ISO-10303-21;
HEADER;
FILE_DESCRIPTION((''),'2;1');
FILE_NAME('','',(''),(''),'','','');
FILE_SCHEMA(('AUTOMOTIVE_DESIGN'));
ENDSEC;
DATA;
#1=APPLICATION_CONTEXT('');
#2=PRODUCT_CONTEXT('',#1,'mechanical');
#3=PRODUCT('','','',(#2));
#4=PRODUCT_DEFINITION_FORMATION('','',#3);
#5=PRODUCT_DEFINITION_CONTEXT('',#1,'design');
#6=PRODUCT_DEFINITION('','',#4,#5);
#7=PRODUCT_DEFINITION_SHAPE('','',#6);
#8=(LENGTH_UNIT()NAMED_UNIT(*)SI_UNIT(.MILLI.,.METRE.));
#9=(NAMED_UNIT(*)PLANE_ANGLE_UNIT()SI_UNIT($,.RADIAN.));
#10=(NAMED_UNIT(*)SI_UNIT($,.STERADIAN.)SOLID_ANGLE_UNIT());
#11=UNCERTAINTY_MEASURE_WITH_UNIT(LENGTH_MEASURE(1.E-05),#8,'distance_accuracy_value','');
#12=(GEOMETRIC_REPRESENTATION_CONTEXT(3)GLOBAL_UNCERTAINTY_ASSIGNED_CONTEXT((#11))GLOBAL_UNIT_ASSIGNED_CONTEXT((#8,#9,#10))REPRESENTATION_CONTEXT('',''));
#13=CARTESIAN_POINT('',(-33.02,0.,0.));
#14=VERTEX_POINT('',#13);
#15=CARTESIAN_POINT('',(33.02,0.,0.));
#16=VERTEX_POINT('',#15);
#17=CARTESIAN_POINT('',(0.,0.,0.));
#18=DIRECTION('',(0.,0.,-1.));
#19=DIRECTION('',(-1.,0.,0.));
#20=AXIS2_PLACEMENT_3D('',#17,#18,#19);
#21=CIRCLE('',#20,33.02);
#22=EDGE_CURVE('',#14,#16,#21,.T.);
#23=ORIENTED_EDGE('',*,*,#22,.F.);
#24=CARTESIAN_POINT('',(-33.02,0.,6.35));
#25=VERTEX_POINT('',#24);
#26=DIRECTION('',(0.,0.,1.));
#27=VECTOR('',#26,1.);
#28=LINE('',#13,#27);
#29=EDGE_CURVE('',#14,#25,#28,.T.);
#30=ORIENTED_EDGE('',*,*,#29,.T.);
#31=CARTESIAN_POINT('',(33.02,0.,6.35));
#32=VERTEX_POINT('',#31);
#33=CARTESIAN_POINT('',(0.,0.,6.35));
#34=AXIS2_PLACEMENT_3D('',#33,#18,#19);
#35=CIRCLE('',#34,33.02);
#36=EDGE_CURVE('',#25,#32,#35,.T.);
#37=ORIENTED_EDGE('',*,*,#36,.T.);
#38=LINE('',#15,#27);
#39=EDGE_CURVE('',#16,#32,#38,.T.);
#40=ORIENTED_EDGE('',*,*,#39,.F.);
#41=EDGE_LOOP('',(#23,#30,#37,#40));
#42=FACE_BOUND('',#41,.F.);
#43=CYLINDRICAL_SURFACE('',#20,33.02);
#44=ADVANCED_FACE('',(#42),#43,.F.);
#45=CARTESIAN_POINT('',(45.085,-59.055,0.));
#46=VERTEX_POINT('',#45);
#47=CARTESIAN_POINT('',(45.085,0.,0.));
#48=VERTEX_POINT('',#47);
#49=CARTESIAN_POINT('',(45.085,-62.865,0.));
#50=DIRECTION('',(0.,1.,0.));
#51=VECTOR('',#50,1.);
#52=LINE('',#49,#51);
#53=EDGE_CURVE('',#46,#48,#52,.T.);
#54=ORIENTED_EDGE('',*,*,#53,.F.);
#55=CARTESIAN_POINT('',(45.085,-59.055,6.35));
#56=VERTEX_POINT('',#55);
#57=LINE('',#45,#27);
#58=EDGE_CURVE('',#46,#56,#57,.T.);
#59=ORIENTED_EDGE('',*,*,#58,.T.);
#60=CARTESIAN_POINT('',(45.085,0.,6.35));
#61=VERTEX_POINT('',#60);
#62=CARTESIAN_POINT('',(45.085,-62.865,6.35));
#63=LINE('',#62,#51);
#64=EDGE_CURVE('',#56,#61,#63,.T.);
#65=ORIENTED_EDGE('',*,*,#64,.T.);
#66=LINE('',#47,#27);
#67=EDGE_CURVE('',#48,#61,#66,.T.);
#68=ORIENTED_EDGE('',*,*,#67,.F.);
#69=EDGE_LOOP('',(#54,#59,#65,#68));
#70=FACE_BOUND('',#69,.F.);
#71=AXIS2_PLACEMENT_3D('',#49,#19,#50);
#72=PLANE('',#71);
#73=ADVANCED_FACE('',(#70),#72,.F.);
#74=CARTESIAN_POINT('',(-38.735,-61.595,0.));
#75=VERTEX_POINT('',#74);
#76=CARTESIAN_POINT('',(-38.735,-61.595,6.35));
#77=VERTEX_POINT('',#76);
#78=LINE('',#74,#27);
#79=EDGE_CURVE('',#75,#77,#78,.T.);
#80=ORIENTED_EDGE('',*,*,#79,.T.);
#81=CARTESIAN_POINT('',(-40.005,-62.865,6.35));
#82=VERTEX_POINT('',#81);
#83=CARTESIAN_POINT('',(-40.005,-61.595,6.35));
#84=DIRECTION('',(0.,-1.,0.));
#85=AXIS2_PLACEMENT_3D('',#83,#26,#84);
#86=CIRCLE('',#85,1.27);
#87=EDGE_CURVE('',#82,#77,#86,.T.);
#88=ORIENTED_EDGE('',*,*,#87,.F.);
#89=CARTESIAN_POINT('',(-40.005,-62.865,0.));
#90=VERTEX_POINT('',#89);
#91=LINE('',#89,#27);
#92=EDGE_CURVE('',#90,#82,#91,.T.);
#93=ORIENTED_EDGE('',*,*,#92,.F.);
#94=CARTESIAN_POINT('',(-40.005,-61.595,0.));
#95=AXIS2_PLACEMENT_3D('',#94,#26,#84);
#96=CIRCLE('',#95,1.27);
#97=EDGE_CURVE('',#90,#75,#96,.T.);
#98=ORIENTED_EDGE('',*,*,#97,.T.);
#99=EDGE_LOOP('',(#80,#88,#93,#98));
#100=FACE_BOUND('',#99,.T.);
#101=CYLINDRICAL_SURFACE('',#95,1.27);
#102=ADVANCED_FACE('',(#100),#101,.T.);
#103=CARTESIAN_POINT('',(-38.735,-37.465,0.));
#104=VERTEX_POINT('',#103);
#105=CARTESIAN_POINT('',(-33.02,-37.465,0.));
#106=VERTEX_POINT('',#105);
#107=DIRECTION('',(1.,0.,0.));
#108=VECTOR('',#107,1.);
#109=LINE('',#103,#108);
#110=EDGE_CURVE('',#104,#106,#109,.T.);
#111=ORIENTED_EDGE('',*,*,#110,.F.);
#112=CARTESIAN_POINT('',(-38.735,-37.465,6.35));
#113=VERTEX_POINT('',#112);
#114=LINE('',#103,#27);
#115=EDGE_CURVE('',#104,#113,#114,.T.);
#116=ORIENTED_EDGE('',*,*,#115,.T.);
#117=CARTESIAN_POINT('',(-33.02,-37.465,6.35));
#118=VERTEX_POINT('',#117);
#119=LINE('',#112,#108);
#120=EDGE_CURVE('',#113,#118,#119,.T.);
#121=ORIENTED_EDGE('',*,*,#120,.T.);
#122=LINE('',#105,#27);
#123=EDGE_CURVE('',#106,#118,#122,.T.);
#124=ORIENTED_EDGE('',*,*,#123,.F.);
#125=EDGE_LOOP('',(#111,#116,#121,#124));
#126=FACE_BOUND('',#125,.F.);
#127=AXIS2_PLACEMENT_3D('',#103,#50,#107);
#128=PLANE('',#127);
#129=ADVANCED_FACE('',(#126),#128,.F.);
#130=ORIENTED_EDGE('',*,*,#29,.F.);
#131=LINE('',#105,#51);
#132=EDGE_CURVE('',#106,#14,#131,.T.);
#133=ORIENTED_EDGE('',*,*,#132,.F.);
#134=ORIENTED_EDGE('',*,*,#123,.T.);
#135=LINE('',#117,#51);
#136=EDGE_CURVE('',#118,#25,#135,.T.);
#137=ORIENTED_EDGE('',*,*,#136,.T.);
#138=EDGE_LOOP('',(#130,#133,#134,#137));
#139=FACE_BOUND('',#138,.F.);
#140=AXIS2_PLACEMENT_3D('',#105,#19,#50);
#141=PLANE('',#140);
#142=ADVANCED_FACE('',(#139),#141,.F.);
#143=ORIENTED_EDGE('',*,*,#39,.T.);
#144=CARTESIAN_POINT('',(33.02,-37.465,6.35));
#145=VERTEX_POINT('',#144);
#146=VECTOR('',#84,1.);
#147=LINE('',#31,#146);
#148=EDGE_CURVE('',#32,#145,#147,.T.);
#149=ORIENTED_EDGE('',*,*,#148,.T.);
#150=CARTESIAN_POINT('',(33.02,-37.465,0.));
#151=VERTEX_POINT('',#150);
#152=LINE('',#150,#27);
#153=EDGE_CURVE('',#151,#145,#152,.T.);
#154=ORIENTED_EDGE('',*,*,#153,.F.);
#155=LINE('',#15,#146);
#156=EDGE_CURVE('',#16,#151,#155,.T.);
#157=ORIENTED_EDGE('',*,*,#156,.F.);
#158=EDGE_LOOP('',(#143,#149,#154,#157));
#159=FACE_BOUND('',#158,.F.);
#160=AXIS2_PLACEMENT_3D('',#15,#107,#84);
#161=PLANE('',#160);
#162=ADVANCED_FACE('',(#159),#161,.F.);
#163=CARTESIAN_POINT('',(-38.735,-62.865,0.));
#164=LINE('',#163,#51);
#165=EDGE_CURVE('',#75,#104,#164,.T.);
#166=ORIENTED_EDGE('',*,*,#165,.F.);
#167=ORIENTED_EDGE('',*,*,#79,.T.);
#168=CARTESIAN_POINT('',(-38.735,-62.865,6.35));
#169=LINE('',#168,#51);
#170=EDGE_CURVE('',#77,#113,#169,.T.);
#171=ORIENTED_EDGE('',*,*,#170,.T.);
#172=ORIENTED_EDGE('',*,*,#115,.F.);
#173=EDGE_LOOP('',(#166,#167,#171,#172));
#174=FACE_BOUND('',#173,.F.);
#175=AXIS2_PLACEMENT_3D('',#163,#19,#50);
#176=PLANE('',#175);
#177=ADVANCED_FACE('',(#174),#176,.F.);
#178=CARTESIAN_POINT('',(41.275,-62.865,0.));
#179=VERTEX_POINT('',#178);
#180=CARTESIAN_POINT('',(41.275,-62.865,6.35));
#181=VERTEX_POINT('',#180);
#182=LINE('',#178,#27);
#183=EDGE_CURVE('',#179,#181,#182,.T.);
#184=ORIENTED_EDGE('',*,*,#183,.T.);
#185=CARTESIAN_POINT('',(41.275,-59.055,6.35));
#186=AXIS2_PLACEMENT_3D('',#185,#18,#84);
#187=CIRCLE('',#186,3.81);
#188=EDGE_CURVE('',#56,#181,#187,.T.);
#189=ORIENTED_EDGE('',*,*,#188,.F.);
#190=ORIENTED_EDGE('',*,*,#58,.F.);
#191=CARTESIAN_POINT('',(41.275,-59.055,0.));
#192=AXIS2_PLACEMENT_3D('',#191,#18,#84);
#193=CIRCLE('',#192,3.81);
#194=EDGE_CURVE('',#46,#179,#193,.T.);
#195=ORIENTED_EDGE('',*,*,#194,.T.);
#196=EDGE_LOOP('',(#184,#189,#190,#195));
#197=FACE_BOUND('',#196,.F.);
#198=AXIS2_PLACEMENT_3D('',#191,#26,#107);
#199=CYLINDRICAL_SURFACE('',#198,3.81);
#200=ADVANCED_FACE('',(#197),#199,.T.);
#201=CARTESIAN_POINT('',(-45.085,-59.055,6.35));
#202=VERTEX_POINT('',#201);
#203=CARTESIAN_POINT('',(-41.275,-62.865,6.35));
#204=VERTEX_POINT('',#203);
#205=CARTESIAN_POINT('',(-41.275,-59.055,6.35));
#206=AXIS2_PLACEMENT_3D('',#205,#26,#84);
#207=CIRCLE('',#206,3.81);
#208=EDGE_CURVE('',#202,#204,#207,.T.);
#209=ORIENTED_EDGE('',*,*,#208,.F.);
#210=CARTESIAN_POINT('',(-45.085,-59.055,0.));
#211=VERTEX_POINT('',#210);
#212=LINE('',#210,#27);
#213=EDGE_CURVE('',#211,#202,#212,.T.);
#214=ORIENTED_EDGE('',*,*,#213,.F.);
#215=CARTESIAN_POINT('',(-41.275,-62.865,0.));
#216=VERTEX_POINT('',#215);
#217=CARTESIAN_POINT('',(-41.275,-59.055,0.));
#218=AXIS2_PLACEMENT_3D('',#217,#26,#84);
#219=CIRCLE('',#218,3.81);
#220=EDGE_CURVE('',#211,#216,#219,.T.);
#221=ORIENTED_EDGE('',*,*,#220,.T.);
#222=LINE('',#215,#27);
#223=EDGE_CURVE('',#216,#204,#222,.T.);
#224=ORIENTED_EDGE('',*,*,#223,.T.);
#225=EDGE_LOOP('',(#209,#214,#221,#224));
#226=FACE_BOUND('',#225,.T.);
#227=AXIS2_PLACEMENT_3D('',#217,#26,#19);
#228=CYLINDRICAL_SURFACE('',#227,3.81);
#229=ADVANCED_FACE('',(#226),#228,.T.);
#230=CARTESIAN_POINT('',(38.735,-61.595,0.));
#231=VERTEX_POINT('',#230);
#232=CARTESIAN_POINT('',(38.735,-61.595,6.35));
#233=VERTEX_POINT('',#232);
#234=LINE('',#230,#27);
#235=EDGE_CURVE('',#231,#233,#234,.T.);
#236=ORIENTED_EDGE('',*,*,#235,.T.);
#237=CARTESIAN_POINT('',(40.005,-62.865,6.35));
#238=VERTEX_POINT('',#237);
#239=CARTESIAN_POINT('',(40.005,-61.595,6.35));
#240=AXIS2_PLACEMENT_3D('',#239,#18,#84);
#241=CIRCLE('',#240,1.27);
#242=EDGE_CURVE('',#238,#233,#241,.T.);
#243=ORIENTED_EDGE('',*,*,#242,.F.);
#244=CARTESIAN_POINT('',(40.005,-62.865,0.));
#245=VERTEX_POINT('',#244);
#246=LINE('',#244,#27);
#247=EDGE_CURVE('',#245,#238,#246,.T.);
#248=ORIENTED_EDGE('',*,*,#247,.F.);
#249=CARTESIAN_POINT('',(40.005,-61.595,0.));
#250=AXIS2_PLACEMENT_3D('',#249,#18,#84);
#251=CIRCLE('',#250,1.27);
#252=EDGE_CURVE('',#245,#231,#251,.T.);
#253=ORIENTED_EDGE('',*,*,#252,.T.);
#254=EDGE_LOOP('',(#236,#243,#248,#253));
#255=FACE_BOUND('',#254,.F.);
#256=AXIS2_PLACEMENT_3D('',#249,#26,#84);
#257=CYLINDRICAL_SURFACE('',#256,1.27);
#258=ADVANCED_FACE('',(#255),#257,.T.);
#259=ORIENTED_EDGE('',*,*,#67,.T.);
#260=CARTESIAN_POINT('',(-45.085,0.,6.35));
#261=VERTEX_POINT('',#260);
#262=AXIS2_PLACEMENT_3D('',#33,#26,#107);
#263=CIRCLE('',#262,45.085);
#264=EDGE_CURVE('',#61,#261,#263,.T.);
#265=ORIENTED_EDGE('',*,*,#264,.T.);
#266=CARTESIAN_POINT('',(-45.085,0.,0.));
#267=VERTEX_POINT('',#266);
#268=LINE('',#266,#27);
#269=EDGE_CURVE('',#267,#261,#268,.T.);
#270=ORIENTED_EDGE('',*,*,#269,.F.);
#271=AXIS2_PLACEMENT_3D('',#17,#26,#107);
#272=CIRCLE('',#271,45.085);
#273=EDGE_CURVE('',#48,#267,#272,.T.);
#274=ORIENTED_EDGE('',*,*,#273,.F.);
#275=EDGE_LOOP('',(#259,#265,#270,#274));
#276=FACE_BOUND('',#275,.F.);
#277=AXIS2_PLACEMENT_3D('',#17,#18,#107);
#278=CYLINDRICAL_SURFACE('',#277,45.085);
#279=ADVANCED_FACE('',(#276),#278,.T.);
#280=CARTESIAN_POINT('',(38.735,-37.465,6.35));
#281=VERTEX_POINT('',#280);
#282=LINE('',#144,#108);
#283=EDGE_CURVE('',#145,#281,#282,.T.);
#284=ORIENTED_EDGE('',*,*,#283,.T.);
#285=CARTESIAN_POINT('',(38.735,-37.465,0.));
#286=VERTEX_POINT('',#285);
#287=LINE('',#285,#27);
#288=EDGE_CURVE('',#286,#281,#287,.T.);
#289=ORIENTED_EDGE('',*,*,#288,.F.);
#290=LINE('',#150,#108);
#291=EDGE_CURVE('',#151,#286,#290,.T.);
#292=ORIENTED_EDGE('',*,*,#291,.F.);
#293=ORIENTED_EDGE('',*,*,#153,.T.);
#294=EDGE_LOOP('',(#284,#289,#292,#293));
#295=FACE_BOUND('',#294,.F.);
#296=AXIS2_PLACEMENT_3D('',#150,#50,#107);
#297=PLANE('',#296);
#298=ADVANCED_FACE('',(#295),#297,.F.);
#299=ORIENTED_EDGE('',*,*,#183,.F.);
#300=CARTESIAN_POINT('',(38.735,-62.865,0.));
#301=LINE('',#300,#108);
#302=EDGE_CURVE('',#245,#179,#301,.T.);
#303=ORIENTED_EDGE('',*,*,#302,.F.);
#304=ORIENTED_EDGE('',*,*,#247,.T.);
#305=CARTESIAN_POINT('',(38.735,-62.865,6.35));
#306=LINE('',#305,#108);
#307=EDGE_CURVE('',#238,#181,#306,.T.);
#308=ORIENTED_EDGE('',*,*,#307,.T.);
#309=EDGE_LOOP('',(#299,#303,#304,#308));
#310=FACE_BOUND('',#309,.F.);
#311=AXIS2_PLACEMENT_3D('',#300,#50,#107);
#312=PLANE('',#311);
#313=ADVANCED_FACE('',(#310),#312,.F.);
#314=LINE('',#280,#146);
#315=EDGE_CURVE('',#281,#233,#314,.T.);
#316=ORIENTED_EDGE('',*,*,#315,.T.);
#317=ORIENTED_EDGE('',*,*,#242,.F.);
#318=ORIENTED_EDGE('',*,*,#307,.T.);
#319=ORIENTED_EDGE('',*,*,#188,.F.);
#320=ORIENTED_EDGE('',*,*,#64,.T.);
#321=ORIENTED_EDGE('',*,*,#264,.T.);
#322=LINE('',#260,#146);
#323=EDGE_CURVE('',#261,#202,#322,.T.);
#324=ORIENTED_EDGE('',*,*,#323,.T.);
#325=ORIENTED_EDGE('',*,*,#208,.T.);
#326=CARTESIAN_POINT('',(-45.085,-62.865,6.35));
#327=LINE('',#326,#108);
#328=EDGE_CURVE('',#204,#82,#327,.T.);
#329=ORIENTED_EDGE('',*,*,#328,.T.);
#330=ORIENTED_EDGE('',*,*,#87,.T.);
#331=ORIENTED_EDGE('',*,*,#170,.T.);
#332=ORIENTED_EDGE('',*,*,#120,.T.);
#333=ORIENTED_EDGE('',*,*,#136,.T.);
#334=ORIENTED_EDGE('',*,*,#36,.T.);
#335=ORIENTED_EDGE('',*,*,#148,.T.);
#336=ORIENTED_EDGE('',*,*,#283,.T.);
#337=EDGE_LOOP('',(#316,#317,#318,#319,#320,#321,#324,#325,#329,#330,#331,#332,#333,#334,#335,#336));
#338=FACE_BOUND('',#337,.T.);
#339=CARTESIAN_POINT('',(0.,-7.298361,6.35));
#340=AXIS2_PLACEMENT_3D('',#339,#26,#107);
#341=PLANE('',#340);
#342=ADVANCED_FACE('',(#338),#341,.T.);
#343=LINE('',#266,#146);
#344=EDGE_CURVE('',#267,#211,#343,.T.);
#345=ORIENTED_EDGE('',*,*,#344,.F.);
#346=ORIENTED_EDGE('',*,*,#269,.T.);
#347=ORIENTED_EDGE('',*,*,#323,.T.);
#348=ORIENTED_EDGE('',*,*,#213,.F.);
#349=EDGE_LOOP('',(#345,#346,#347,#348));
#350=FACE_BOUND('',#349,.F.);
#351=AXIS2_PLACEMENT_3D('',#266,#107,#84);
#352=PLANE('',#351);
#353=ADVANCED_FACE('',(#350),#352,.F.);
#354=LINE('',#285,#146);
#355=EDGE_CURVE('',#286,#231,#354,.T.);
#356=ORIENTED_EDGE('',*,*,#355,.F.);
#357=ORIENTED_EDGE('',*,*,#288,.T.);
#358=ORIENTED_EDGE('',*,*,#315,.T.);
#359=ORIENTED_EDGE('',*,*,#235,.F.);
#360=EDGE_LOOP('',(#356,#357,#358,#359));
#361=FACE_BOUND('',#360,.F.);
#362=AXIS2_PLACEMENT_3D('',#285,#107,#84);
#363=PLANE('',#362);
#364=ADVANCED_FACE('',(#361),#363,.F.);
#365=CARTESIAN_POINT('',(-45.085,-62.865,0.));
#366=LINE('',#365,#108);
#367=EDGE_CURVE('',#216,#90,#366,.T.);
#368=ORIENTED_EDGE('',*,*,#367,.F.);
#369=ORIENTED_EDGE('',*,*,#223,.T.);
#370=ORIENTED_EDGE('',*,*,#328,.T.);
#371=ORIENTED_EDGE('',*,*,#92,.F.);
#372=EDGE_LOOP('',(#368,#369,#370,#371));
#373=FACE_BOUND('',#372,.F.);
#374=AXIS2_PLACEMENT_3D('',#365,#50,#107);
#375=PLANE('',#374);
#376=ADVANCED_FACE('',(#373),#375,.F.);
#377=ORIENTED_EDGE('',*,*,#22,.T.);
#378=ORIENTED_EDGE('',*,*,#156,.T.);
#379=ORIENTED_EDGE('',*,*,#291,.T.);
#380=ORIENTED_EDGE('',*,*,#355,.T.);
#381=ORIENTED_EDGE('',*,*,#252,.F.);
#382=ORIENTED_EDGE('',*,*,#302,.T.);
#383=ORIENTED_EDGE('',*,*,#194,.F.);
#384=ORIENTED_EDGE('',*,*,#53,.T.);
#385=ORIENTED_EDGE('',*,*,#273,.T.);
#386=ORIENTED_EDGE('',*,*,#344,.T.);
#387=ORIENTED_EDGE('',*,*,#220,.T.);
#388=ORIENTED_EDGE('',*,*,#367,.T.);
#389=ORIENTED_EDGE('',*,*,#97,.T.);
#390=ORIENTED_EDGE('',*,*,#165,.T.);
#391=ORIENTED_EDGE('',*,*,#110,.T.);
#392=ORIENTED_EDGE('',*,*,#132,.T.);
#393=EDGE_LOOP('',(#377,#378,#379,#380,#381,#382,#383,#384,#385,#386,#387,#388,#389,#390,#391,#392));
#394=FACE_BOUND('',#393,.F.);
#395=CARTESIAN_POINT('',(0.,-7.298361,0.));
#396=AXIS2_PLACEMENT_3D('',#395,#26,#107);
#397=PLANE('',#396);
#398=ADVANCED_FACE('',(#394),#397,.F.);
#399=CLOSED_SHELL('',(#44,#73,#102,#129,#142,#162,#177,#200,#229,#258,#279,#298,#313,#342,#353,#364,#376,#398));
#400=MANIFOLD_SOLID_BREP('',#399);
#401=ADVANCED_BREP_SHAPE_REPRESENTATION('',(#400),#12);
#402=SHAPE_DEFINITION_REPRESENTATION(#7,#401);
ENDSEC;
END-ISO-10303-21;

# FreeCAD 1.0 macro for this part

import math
import FreeCAD as App
import Part
import Sketcher
Q = App.Units.Quantity


def edges_at(feature, points):
    """Names of the edges that pass closest to the given points."""
    edges = feature.Shape.Edges
    near = lambda p: min(range(len(edges)), key=lambda i: edges[i].distToShape(Part.Vertex(*p))[0])
    return sorted({f"Edge{near(p) + 1}" for p in points})

doc = App.newDocument("Part")
body = doc.addObject("PartDesign::Body", "Body")

sketch1 = doc.addObject("Sketcher::SketchObject", "Sketch")
body.addObject(sketch1)
sketch1.AttachmentSupport = (doc.XY_Plane, [""])
sketch1.MapMode = "FlatFace"
sketch1.addGeometry([
    Part.LineSegment(App.Vector(45, -63, 0), App.Vector(45, 0, 0)),
    Part.ArcOfCircle(Part.Circle(App.Vector(0, 0, 0), App.Vector(0, 0, 1), 45), math.radians(0), math.radians(180)),
    Part.LineSegment(App.Vector(-45, 0, 0), App.Vector(-45, -63, 0)),
    Part.LineSegment(App.Vector(-45, -63, 0), App.Vector(-39, -63, 0)),
    Part.LineSegment(App.Vector(-39, -63, 0), App.Vector(-39, -37, 0)),
    Part.LineSegment(App.Vector(-39, -37, 0), App.Vector(-33, -37, 0)),
    Part.LineSegment(App.Vector(-33, -37, 0), App.Vector(-33, 0, 0)),
    Part.ArcOfCircle(Part.Circle(App.Vector(0, 0, 0), App.Vector(0, 0, 1), 33), math.radians(0), math.radians(180)),
    Part.LineSegment(App.Vector(33, 0, 0), App.Vector(33, -37, 0)),
    Part.LineSegment(App.Vector(33, -37, 0), App.Vector(39, -37, 0)),
    Part.LineSegment(App.Vector(39, -37, 0), App.Vector(39, -63, 0)),
    Part.LineSegment(App.Vector(39, -63, 0), App.Vector(45, -63, 0)),
], False)
sketch1.addConstraint([
    Sketcher.Constraint("Tangent", 0, 2, 1, 1),
    Sketcher.Constraint("Tangent", 1, 2, 2, 1),
    Sketcher.Constraint("Coincident", 2, 2, 3, 1),
    Sketcher.Constraint("Coincident", 3, 2, 4, 1),
    Sketcher.Constraint("Coincident", 4, 2, 5, 1),
    Sketcher.Constraint("Coincident", 5, 2, 6, 1),
    Sketcher.Constraint("Tangent", 6, 2, 7, 2),
    Sketcher.Constraint("Tangent", 7, 1, 8, 1),
    Sketcher.Constraint("Coincident", 8, 2, 9, 1),
    Sketcher.Constraint("Coincident", 9, 2, 10, 1),
    Sketcher.Constraint("Coincident", 10, 2, 11, 1),
    Sketcher.Constraint("Coincident", 11, 2, 0, 1),
    Sketcher.Constraint("Vertical", 0),
    Sketcher.Constraint("Vertical", 2),
    Sketcher.Constraint("Horizontal", 3),
    Sketcher.Constraint("Vertical", 4),
    Sketcher.Constraint("Horizontal", 5),
    Sketcher.Constraint("Vertical", 6),
    Sketcher.Constraint("Vertical", 8),
    Sketcher.Constraint("Horizontal", 9),
    Sketcher.Constraint("Vertical", 10),
    Sketcher.Constraint("Horizontal", 11),
    Sketcher.Constraint("Coincident", 1, 3, -1, 1),
    Sketcher.Constraint("Coincident", 7, 3, -1, 1),
    Sketcher.Constraint("Symmetric", 4, 2, 9, 2, -2),
    Sketcher.Constraint("Horizontal", 3, 2, 10, 2),
    Sketcher.Constraint("Radius", 7, Q("1.3 in")),
    Sketcher.Constraint("DistanceY", 4, 1, 4, 2, Q("1 in")),
    Sketcher.Constraint("Radius", 1, Q("1.775 in")),
    Sketcher.Constraint("DistanceX", 3, 1, 3, 2, Q("0.25 in")),
    Sketcher.Constraint("DistanceY", 0, 1, 0, 2, Q("2.475 in")),
])
pad1 = doc.addObject("PartDesign::Pad", "Pad")
body.addObject(pad1)
pad1.Profile = sketch1
pad1.Length = Q("0.25 in")
doc.recompute()

fillet = doc.addObject("PartDesign::Fillet", "Fillet")
body.addObject(fillet)
fillet.Base = (pad1, edges_at(pad1, [(-45.085, -62.865, 3.175), (45.085, -62.865, 3.175)]))
fillet.Radius = Q("0.15 in")
doc.recompute()

fillet2 = doc.addObject("PartDesign::Fillet", "Fillet001")
body.addObject(fillet2)
fillet2.Base = (fillet, edges_at(fillet, [(-38.735, -62.865, 3.175), (38.735, -62.865, 3.175)]))
fillet2.Radius = Q("0.05 in")

doc.recompute()
